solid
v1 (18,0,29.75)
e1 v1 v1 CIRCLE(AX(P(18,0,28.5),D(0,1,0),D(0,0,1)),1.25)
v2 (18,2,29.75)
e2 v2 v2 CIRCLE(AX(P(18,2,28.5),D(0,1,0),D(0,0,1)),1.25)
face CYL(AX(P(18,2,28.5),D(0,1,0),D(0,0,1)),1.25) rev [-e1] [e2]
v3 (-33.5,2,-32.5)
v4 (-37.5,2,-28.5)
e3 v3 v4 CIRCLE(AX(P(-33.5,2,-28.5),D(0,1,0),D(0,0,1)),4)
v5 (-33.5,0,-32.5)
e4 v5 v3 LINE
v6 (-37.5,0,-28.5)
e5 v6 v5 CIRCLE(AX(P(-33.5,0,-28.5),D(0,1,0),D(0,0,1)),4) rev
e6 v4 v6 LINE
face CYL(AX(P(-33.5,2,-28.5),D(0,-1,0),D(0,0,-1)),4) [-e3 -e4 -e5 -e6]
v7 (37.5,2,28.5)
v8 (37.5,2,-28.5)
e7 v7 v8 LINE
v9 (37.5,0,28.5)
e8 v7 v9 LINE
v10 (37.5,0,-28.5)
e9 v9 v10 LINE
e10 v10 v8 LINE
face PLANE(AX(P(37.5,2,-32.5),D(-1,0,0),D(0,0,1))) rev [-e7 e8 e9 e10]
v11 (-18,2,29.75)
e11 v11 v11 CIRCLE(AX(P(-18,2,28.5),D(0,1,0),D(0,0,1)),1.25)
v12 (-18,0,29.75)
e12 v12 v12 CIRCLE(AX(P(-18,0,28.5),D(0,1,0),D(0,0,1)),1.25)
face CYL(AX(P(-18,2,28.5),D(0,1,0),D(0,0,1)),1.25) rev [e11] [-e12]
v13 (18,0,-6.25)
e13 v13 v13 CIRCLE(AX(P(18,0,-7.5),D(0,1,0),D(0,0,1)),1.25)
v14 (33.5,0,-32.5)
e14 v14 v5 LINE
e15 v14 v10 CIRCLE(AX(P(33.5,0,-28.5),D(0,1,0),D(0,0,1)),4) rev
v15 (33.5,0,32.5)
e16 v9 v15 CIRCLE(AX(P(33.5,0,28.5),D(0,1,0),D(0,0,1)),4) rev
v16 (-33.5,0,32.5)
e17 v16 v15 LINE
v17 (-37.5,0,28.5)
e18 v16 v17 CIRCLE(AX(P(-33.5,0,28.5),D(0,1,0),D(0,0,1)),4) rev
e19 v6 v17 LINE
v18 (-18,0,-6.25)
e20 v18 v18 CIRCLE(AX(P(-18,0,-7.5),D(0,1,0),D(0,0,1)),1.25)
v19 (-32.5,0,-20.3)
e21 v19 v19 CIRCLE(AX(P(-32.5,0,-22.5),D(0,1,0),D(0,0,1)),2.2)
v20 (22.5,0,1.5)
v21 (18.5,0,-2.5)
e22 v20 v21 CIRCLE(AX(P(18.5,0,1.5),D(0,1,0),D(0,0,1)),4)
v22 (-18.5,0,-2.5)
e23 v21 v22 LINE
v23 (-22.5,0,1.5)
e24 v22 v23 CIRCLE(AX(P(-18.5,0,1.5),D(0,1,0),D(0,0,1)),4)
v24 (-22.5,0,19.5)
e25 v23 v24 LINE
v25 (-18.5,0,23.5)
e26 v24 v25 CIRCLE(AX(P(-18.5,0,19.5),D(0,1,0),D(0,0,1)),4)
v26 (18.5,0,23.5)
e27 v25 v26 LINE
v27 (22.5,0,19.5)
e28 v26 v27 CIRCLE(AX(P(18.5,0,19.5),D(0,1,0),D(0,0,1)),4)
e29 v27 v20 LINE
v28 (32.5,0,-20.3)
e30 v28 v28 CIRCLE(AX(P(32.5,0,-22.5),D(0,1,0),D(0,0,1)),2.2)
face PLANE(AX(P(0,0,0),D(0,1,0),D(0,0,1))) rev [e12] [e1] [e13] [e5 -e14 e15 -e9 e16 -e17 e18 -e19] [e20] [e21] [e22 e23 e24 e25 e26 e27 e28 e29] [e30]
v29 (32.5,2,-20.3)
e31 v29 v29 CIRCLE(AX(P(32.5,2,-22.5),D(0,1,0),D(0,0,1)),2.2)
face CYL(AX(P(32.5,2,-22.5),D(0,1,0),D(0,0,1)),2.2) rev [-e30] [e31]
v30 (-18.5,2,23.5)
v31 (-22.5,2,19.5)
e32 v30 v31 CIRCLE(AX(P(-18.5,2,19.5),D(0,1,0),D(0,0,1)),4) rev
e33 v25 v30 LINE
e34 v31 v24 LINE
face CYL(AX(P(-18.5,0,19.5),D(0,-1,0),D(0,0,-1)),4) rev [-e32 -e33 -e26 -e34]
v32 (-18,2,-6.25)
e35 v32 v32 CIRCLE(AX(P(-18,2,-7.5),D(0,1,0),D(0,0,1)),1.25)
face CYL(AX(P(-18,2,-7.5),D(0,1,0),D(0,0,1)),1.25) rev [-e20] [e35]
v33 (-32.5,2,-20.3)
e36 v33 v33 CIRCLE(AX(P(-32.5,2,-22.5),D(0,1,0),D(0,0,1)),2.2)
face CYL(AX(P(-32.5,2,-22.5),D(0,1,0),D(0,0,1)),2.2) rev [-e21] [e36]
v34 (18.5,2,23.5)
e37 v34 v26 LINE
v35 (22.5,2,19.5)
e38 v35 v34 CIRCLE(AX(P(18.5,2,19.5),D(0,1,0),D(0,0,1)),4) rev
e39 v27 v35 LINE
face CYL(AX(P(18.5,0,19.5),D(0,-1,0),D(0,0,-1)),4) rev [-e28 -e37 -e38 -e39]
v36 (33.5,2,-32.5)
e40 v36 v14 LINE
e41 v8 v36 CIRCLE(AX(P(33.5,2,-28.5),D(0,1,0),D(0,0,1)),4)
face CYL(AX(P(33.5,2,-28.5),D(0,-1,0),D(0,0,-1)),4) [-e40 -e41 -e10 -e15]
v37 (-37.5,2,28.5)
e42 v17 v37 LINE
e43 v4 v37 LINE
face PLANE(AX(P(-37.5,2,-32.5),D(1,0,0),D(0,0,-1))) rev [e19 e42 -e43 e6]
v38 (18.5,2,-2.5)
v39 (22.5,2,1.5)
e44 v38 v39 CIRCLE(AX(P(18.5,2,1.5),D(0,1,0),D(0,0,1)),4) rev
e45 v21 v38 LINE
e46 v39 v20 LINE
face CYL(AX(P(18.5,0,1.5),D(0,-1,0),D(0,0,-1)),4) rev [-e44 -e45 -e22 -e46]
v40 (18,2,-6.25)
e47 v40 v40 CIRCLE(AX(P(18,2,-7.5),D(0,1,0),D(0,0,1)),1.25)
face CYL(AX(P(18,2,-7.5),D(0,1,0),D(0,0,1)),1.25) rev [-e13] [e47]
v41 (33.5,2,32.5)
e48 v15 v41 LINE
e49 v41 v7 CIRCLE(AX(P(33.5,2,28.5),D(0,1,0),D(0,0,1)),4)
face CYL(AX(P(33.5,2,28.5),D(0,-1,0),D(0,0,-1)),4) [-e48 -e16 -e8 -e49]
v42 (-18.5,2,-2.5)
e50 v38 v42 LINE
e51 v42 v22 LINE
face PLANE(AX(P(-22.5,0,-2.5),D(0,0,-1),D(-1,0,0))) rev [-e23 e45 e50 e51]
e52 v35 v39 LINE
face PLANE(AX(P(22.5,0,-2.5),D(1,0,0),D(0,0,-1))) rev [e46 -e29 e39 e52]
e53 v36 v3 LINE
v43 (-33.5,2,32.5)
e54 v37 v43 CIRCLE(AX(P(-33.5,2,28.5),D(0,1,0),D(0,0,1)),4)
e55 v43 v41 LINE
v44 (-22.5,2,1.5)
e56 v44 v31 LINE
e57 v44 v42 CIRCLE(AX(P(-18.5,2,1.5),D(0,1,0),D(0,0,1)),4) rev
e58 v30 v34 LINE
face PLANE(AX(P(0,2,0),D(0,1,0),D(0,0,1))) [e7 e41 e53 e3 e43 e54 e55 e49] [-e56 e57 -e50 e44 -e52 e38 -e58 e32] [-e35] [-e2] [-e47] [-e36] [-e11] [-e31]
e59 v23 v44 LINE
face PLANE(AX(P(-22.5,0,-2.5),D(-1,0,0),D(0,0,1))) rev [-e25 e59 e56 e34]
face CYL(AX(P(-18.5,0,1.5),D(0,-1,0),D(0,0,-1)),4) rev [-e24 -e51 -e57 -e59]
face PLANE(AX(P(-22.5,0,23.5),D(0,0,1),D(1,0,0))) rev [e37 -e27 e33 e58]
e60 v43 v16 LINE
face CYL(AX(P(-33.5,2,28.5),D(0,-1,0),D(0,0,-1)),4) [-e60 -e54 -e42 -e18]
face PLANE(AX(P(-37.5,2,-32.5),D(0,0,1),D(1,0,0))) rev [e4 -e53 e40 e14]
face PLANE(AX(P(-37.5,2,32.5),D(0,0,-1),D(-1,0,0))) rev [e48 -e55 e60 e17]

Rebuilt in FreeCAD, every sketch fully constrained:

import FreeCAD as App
import Part
import Sketcher
from FreeCAD import Vector
Q = App.Units.Quantity


def edges_at(feature, points):
    """Names of the edges that pass closest to the given points."""
    edges = feature.Shape.Edges
    near = lambda p: min(range(len(edges)), key=lambda i: edges[i].distToShape(Part.Vertex(*p))[0])
    return sorted({f"Edge{near(p) + 1}" for p in points})


def add_polygon(sketch, points):
    """Adds a closed chain of lines whose ends are joined by coincident constraints."""
    first, n = sketch.GeometryCount, len(points)
    for a, b in zip(points, points[1:] + points[:1]):
        sketch.addGeometry(Part.LineSegment(App.Vector(*a, 0), App.Vector(*b, 0)), False)
    for i in range(n):
        sketch.addConstraint(Sketcher.Constraint("Coincident", first + i, 2, first + (i + 1) % n, 1))

doc = App.newDocument("Part")
body = doc.addObject("PartDesign::Body", "Body")

# Sketch on XZ plane
sketch1 = body.newObject("Sketcher::SketchObject", "Sketch")
sketch1.AttachmentSupport = (doc.getObject("XZ_Plane"), [""])
sketch1.MapMode = "FlatFace"
add_polygon(sketch1, [(-38, -32), (-38, 32), (38, 32), (38, -32)])  # lines 0-3
sketch1.addConstraint([
    Sketcher.Constraint("Vertical", 0),
    Sketcher.Constraint("Horizontal", 1),
    Sketcher.Constraint("Vertical", 2),
    Sketcher.Constraint("Horizontal", 3),
    Sketcher.Constraint("Symmetric", 0, 2, 2, 2, -1, 1),
    Sketcher.Constraint("DistanceX", 1, 1, 1, 2, Q("75 mm")),
    Sketcher.Constraint("DistanceY", 0, 1, 0, 2, Q("65 mm")),
])
pad1 = body.newObject("PartDesign::Pad", "Pad")
pad1.Profile = sketch1
pad1.Length = 2
pad1.Reversed = True

# Sketch on XZ plane
sketch2 = body.newObject("Sketcher::SketchObject", "Sketch001")
sketch2.AttachmentSupport = (doc.getObject("XZ_Plane"), [""])
sketch2.MapMode = "FlatFace"
sketch2.AttachmentOffset = App.Placement(Vector(0, 0, -2), App.Rotation())
sketch2.addGeometry([
    Part.Circle(Vector(-32.5, -22.5, 0), Vector(0, 0, 1), 2.2),
    Part.Circle(Vector(32.5, -22.5, 0), Vector(0, 0, 1), 2.2),
], False)
sketch2.addConstraint([
    Sketcher.Constraint("Equal", 0, 1),
    Sketcher.Constraint("Symmetric", 0, 3, 1, 3, -2),
    Sketcher.Constraint("Diameter", 0, Q("4.4 mm")),
    Sketcher.Constraint("DistanceX", 0, 3, 1, 3, Q("65 mm")),
    Sketcher.Constraint("DistanceY", 0, 3, -1, 1, Q("22.5 mm")),
])
doc.recompute()
hole = body.newObject("PartDesign::Hole", "Hole")
hole.Profile = sketch2
hole.ThreadType = "None"
hole.Diameter = 4.4
hole.DepthType = "ThroughAll"
hole.Reversed = True

# Sketch on XZ plane
sketch3 = body.newObject("Sketcher::SketchObject", "Sketch002")
sketch3.AttachmentSupport = (doc.getObject("XZ_Plane"), [""])
sketch3.MapMode = "FlatFace"
sketch3.AttachmentOffset = App.Placement(Vector(0, 0, -2), App.Rotation())
sketch3.addGeometry([
    Part.Circle(Vector(-18, -7.5, 0), Vector(0, 0, 1), 1.2),
    Part.Circle(Vector(-18, 28.5, 0), Vector(0, 0, 1), 1.2),
], False)
sketch3.addConstraint([
    Sketcher.Constraint("Equal", 0, 1),
    Sketcher.Constraint("Vertical", 0, 3, 1, 3),
    Sketcher.Constraint("Diameter", 0, Q("2.5 mm")),
    Sketcher.Constraint("DistanceX", 0, 3, -1, 1, Q("18 mm")),
    Sketcher.Constraint("DistanceY", 0, 3, 1, 3, Q("36 mm")),
    Sketcher.Constraint("DistanceY", 0, 3, -1, 1, Q("7.5 mm")),
])
doc.recompute()
hole2 = body.newObject("PartDesign::Hole", "Hole001")
hole2.Profile = sketch3
hole2.ThreadType = "None"
hole2.Diameter = 2.5
hole2.DepthType = "ThroughAll"
hole2.Reversed = True
doc.recompute()

mirrored = body.newObject("PartDesign::Mirrored", "Mirrored")
mirrored.Originals = [hole2]
mirrored.MirrorPlane = (doc.getObject("YZ_Plane"), [""])
body.Tip = mirrored
doc.recompute()

fillet = body.newObject("PartDesign::Fillet", "Fillet")
fillet.Base = (mirrored, edges_at(mirrored, [
    (37.5, 1, 32.5),
    (-37.5, 1, 32.5),
    (-37.5, 1, -32.5),
    (37.5, 1, -32.5),
]))
fillet.Radius = 4

# Sketch on XZ plane
sketch4 = body.newObject("Sketcher::SketchObject", "Sketch003")
sketch4.AttachmentSupport = (doc.getObject("XZ_Plane"), [""])
sketch4.MapMode = "FlatFace"
sketch4.AttachmentOffset = App.Placement(Vector(0, 0, -2), App.Rotation())
add_polygon(sketch4, [(-22, -2), (-22, 24), (22, 24), (22, -2)])  # lines 0-3
sketch4.addConstraint([
    Sketcher.Constraint("Vertical", 0),
    Sketcher.Constraint("Horizontal", 1),
    Sketcher.Constraint("Vertical", 2),
    Sketcher.Constraint("Horizontal", 3),
    Sketcher.Constraint("DistanceX", 1, 1, 1, 2, Q("45 mm")),
    Sketcher.Constraint("DistanceY", 0, 1, 0, 2, Q("26 mm")),
    Sketcher.Constraint("DistanceX", 0, 2, -1, 1, Q("22.5 mm")),
    Sketcher.Constraint("DistanceY", -1, 1, 0, 2, Q("23.5 mm")),
])
pocket1 = body.newObject("PartDesign::Pocket", "Pocket")
pocket1.Profile = sketch4
pocket1.Type = "ThroughAll"
pocket1.Reversed = True
doc.recompute()

fillet2 = body.newObject("PartDesign::Fillet", "Fillet001")
fillet2.Base = (pocket1, edges_at(pocket1, [
    (-22.5, 1, 23.5),
    (-22.5, 1, -2.5),
    (22.5, 1, -2.5),
    (22.5, 1, 23.5),
]))
fillet2.Radius = 4

doc.recompute()
